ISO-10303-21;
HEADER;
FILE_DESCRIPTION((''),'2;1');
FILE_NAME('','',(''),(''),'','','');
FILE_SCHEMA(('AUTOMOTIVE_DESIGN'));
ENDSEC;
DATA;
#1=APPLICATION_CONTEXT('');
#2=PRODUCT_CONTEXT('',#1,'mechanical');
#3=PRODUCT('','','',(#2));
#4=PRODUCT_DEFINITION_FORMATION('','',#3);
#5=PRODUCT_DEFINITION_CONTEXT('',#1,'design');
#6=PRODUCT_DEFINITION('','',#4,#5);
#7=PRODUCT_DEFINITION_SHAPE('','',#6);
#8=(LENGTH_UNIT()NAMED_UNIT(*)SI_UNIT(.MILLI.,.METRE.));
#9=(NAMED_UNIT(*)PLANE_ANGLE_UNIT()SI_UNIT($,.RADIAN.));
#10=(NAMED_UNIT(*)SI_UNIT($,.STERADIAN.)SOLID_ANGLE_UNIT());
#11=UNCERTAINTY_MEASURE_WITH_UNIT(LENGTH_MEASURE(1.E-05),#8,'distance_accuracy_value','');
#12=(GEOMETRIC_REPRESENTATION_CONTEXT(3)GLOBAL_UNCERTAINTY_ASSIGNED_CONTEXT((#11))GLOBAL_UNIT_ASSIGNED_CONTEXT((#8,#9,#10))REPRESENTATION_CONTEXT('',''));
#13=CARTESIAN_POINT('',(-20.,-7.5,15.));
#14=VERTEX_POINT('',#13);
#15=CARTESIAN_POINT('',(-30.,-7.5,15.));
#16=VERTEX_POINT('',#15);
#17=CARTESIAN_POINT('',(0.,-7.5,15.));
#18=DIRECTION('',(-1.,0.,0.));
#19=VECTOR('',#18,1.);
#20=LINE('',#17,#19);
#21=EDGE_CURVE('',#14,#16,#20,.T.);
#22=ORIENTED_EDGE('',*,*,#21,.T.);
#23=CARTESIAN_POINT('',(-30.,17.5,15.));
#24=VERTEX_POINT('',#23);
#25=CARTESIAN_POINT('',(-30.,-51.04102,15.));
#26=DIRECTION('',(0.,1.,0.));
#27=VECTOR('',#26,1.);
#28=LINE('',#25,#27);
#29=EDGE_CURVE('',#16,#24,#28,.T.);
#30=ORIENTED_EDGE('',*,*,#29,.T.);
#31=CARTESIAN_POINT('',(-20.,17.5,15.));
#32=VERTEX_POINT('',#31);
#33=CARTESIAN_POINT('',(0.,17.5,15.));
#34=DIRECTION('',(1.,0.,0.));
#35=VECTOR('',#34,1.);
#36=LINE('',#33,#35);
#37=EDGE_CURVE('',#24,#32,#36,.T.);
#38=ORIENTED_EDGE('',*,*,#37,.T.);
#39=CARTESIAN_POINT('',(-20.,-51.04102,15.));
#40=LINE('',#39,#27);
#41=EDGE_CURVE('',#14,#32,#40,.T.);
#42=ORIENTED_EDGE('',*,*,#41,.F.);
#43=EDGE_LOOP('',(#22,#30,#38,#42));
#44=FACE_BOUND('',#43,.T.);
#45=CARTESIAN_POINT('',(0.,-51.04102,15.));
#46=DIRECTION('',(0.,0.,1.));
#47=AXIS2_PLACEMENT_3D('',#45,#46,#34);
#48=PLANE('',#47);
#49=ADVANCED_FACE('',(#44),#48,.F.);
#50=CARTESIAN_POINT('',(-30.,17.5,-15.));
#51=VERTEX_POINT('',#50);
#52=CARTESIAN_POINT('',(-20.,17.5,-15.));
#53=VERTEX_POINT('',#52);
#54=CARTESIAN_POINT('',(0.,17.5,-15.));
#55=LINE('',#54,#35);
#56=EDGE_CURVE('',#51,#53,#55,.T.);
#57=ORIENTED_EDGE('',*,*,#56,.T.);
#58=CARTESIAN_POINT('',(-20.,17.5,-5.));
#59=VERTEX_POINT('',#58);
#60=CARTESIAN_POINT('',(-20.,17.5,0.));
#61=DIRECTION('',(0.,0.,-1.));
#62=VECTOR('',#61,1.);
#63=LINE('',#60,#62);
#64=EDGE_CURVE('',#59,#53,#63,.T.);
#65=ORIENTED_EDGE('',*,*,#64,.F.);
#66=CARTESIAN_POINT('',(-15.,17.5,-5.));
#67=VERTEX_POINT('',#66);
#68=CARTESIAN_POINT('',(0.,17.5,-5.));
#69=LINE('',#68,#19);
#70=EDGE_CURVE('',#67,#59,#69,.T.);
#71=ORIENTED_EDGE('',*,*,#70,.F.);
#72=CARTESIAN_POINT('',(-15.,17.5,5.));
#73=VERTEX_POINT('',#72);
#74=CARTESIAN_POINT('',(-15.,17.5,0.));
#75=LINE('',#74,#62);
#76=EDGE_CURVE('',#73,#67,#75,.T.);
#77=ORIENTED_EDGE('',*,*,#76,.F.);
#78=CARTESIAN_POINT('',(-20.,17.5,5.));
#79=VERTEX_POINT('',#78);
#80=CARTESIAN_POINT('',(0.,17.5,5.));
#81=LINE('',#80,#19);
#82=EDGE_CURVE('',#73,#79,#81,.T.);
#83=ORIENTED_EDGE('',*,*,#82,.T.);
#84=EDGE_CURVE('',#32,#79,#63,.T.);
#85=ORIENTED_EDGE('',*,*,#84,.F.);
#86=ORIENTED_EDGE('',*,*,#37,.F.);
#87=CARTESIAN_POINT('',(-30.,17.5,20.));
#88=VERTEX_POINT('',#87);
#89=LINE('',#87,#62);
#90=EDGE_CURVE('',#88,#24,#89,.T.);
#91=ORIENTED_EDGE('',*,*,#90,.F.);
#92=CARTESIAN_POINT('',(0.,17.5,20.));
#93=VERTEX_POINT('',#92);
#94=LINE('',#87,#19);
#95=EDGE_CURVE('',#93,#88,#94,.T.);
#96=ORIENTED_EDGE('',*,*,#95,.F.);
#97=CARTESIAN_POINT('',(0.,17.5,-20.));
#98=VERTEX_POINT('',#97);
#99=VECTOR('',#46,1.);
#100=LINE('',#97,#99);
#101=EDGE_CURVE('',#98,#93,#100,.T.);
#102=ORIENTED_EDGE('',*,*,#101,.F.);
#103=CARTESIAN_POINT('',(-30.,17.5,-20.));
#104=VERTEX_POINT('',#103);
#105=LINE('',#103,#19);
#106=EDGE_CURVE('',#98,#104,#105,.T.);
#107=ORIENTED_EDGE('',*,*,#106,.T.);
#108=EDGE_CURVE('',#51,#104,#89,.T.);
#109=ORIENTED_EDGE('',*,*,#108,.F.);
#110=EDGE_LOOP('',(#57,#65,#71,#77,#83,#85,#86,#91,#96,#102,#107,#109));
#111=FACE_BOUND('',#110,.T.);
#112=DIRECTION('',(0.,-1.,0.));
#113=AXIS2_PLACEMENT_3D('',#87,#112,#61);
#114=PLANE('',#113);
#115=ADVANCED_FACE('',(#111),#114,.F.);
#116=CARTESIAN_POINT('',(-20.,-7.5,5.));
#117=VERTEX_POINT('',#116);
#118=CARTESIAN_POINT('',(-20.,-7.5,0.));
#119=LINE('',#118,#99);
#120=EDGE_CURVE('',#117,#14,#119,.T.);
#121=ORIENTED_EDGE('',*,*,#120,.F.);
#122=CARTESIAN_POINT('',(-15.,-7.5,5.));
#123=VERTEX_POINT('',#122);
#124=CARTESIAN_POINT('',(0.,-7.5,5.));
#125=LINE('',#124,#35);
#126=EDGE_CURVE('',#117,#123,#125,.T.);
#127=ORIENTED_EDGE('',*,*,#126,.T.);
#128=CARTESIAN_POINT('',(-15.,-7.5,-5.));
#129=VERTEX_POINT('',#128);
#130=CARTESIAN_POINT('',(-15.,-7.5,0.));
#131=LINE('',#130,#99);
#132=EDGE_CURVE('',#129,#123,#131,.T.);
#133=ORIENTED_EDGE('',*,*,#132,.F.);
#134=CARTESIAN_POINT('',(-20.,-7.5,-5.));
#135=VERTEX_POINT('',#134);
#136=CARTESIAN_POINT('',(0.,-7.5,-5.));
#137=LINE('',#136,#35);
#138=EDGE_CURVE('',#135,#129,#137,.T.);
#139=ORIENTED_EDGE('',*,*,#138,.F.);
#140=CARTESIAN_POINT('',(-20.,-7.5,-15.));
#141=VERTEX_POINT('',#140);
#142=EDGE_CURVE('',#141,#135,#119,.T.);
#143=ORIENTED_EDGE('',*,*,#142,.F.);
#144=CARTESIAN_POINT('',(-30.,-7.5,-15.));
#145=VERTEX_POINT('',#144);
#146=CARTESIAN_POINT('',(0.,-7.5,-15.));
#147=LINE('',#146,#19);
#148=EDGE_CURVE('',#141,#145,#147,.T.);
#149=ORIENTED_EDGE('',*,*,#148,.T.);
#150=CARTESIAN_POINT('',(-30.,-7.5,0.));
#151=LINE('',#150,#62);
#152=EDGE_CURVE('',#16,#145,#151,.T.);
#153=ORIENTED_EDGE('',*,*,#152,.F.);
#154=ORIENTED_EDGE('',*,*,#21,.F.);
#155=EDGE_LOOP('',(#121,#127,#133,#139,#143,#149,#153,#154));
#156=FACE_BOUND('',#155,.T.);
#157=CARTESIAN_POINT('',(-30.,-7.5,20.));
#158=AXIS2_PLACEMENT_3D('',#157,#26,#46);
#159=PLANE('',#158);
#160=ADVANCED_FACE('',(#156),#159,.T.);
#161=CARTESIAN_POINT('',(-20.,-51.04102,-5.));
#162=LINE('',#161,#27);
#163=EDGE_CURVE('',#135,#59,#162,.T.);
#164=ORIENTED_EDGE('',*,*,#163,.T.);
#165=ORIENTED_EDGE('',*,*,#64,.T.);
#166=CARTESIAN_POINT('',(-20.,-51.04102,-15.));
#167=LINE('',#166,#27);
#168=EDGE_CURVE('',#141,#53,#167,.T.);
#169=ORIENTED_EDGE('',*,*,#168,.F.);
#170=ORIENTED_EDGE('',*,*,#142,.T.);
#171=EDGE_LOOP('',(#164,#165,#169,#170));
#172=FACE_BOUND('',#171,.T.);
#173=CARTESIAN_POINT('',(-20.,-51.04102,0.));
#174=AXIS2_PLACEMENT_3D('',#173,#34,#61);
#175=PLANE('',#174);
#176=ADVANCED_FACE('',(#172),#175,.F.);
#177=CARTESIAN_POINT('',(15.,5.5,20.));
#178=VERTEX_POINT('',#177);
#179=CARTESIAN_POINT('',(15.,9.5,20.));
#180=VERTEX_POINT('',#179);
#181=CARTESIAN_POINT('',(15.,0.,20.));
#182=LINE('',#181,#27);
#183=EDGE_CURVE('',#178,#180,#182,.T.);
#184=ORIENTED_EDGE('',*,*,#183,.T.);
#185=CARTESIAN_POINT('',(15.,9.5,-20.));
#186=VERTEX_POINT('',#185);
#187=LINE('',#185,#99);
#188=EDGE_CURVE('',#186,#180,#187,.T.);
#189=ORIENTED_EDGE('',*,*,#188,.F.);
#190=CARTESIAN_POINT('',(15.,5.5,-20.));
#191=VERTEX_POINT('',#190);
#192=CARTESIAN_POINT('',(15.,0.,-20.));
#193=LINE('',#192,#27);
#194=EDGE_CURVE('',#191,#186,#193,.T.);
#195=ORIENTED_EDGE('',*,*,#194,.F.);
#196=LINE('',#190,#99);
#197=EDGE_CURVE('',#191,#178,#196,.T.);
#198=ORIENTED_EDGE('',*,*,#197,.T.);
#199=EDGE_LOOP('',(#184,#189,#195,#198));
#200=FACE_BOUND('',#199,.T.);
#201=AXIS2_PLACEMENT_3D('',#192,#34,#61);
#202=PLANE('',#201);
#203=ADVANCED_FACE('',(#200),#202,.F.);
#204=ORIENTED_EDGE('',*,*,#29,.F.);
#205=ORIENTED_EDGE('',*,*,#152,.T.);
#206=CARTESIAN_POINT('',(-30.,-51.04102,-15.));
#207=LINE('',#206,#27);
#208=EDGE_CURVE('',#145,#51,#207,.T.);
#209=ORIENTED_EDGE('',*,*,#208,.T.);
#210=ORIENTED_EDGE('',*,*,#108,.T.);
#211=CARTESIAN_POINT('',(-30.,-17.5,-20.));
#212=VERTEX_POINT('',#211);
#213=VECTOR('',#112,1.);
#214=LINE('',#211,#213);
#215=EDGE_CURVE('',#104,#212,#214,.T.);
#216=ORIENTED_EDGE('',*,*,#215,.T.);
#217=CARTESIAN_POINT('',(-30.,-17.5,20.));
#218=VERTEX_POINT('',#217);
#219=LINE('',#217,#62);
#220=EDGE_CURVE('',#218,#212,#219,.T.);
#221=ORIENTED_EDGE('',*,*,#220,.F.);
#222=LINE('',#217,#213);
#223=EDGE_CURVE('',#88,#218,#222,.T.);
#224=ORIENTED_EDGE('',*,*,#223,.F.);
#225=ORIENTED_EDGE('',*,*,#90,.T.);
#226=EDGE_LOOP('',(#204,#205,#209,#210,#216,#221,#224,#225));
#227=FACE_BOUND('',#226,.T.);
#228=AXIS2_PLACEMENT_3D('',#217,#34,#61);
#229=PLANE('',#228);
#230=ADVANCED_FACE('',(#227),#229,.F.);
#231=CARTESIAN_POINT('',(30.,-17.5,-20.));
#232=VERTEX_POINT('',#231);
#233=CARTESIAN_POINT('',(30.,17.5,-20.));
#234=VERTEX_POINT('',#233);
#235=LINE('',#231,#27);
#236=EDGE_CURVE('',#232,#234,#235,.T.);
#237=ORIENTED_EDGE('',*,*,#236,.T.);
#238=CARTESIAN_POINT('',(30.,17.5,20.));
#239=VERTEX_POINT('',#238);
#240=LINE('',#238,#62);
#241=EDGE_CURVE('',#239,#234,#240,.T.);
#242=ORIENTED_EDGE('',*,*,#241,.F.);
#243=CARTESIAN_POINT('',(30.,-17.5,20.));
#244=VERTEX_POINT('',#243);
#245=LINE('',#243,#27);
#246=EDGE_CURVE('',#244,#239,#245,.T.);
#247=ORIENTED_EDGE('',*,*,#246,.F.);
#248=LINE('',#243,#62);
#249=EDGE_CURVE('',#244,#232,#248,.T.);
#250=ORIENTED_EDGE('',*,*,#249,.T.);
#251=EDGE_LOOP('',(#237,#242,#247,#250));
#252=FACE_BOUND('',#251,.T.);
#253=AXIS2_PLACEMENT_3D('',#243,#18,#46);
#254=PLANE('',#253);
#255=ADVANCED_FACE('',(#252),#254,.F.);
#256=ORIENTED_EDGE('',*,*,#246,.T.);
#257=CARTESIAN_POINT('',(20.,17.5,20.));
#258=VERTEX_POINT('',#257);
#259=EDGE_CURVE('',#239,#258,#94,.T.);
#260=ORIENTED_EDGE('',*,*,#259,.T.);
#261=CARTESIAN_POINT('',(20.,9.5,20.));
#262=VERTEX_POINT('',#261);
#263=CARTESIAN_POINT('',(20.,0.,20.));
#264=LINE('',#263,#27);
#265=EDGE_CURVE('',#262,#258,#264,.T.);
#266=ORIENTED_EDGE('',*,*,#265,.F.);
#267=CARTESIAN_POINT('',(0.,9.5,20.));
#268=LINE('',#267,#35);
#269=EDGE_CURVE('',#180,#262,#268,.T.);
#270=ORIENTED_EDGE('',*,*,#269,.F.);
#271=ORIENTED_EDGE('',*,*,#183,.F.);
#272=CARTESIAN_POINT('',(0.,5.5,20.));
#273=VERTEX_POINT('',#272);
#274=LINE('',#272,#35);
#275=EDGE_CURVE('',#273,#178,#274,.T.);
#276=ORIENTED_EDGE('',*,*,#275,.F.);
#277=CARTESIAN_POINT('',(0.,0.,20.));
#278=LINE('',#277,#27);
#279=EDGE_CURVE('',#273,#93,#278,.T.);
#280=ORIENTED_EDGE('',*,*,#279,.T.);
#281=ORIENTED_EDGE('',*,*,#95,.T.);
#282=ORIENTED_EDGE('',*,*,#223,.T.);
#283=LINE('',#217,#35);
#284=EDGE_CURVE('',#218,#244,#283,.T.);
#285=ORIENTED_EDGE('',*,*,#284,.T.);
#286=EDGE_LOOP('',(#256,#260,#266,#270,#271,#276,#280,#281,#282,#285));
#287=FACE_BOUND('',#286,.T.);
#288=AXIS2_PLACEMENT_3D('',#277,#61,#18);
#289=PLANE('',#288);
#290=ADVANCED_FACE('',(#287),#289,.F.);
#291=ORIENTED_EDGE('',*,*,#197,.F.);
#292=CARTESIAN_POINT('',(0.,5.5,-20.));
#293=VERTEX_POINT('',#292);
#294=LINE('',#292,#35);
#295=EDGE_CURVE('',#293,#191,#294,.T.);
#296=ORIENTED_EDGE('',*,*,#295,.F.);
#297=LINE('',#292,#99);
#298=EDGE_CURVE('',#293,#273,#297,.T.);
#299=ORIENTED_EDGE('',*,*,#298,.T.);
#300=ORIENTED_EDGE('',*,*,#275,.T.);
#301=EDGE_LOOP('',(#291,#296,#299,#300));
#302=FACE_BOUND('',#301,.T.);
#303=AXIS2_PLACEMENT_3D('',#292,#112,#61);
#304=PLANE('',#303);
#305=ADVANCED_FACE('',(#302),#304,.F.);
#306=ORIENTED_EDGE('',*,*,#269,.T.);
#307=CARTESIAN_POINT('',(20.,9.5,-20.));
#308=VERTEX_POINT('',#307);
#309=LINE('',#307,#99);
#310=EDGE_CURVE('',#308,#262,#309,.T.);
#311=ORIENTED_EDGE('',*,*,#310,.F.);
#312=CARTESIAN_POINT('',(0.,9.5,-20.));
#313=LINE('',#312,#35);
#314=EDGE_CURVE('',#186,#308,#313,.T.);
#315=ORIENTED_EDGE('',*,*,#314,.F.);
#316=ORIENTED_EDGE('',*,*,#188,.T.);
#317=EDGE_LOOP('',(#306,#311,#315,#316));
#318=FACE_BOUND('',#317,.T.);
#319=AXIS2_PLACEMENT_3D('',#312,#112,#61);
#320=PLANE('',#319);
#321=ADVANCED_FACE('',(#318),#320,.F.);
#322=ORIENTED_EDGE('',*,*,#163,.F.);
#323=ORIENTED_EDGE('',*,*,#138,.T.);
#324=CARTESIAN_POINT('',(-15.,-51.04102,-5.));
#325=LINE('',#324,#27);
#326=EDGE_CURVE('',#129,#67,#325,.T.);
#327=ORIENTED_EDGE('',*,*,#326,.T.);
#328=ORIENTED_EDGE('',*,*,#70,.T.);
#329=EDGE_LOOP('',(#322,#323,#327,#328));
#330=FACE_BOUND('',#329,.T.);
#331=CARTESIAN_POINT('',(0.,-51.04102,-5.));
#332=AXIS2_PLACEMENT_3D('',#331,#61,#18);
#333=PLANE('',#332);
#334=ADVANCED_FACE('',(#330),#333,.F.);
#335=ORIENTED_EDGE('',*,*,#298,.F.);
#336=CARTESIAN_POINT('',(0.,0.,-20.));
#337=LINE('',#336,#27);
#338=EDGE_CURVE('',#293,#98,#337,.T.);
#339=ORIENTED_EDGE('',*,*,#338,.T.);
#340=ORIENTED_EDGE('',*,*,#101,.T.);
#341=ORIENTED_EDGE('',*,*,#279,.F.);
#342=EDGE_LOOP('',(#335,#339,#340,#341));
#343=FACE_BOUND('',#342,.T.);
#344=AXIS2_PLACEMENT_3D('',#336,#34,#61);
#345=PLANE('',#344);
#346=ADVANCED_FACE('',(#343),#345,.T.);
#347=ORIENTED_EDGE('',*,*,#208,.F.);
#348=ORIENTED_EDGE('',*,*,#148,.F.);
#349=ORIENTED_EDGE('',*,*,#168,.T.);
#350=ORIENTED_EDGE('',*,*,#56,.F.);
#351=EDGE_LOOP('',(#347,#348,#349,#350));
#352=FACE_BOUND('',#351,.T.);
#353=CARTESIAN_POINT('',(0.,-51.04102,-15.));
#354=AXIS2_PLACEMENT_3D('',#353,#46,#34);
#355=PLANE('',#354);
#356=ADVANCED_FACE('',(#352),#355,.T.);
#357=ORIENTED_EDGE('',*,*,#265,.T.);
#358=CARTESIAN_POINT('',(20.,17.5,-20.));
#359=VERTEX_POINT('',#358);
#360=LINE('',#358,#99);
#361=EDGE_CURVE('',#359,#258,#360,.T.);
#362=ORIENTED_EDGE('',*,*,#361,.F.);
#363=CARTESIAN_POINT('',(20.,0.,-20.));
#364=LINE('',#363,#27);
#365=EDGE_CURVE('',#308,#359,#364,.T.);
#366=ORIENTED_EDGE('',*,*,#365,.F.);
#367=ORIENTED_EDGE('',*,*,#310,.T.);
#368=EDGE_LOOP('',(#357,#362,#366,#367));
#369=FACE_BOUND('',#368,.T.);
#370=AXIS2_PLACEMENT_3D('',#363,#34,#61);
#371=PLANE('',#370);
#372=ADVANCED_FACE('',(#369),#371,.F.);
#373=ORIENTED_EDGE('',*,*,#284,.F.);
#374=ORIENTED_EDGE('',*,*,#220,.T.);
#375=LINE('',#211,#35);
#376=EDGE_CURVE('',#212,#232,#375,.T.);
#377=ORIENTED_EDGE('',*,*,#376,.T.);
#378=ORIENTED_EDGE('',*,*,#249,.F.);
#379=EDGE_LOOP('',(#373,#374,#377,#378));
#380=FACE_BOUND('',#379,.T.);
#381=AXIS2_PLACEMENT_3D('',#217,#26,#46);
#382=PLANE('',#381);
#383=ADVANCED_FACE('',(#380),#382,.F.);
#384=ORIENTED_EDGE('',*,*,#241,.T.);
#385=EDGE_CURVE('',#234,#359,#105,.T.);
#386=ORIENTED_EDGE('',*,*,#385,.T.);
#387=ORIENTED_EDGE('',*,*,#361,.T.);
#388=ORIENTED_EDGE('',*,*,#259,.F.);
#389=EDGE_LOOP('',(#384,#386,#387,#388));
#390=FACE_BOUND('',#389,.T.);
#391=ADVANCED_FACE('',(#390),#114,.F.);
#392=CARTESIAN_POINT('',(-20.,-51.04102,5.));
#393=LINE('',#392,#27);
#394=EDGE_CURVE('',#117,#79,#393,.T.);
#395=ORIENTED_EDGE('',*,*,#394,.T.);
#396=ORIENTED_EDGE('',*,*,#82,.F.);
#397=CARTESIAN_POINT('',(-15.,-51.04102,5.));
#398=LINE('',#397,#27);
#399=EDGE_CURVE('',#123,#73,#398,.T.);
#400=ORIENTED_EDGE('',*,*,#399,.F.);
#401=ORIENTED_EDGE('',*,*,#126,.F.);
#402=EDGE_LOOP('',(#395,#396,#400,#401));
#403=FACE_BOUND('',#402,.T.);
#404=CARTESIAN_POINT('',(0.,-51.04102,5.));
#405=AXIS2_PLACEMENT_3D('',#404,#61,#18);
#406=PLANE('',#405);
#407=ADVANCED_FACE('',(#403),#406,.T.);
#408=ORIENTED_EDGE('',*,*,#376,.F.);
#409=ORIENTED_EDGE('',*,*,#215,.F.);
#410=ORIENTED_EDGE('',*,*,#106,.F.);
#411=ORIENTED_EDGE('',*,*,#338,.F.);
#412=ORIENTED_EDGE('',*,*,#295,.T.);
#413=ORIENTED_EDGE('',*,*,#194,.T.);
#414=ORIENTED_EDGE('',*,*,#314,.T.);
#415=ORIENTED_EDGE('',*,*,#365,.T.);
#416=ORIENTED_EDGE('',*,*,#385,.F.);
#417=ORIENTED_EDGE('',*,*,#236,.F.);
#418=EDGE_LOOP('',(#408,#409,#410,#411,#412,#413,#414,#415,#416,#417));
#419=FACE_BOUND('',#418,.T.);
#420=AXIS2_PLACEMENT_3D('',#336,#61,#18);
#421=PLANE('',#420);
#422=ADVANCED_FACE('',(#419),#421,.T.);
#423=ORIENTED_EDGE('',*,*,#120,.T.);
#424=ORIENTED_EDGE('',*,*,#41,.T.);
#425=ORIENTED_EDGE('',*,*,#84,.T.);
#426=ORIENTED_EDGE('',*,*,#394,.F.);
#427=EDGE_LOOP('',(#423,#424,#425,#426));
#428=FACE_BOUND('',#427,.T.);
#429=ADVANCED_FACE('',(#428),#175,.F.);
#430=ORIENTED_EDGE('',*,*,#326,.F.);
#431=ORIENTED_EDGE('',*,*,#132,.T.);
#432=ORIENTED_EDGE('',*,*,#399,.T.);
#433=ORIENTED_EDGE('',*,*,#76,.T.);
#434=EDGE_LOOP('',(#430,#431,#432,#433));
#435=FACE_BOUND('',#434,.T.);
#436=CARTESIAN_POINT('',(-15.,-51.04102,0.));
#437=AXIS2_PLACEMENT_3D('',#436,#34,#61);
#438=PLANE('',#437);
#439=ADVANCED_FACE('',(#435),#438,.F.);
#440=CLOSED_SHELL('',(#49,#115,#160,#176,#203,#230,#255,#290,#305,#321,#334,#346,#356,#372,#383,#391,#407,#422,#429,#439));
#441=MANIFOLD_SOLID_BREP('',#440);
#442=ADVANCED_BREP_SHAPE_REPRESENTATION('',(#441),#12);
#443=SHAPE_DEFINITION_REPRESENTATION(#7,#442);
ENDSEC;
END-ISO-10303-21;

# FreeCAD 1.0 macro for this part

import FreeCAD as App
import Part
import Sketcher
Q = App.Units.Quantity


def add_polygon(sketch, points):
    """Adds a closed chain of lines whose ends are joined by coincident constraints."""
    first, n = sketch.GeometryCount, len(points)
    for a, b in zip(points, points[1:] + points[:1]):
        sketch.addGeometry(Part.LineSegment(App.Vector(*a, 0), App.Vector(*b, 0)), False)
    for i in range(n):
        sketch.addConstraint(Sketcher.Constraint("Coincident", first + i, 2, first + (i + 1) % n, 1))

doc = App.newDocument("Part")
body = doc.addObject("PartDesign::Body", "Body")

sketch1 = body.newObject("Sketcher::SketchObject", "Sketch")
sketch1.AttachmentSupport = (doc.getObject("XY_Plane"), [""])
sketch1.MapMode = "FlatFace"
add_polygon(sketch1, [(-30, 17.5), (-30, -17.5), (30, -17.5), (30, 17.5)])
sketch1.addConstraint([
    Sketcher.Constraint("Vertical", 0),
    Sketcher.Constraint("Horizontal", 1),
    Sketcher.Constraint("Vertical", 2),
    Sketcher.Constraint("Horizontal", 3),
    Sketcher.Constraint("Symmetric", 0, 2, 2, 2, -1, 1),
    Sketcher.Constraint("DistanceX", 1, 1, 1, 2, Q("60 mm")),
    Sketcher.Constraint("DistanceY", 0, 2, 0, 1, Q("35 mm")),
])
pad1 = body.newObject("PartDesign::Pad", "Pad")
pad1.Profile = sketch1
pad1.Length = 40
pad1.Midplane = True

sketch2 = body.newObject("Sketcher::SketchObject", "Sketch001")
sketch2.AttachmentSupport = (doc.getObject("XZ_Plane"), [""])
sketch2.MapMode = "FlatFace"
sketch2.AttachmentOffset = App.Placement(App.Vector(0, 0, -17.5), App.Rotation())
add_polygon(sketch2, [(-30, -15), (-30, 15), (-20, 15), (-20, 5), (-15, 5), (-15, -5), (-20, -5), (-20, -15)])
sketch2.addConstraint([
    Sketcher.Constraint("Vertical", 0),
    Sketcher.Constraint("Horizontal", 1),
    Sketcher.Constraint("Vertical", 2),
    Sketcher.Constraint("Horizontal", 3),
    Sketcher.Constraint("Vertical", 4),
    Sketcher.Constraint("Horizontal", 5),
    Sketcher.Constraint("Vertical", 6),
    Sketcher.Constraint("Horizontal", 7),
    Sketcher.Constraint("Symmetric", 2, 2, 5, 2, -1),
    Sketcher.Constraint("Equal", 7, 2),
    Sketcher.Constraint("Equal", 2, 4),
    Sketcher.Constraint("Equal", 4, 6),
    Sketcher.Constraint("DistanceX", 1, 1, 1, 2, Q("10 mm")),
    Sketcher.Constraint("DistanceX", 3, 1, 3, 2, Q("5 mm")),
    Sketcher.Constraint("DistanceX", 0, 2, -1, 1, Q("30 mm")),
])
pocket1 = body.newObject("PartDesign::Pocket", "Pocket")
pocket1.Profile = sketch2
pocket1.Length = 25
pocket1.Reversed = True

sketch3 = body.newObject("Sketcher::SketchObject", "Sketch002")
sketch3.AttachmentSupport = (doc.getObject("XY_Plane"), [""])
sketch3.MapMode = "FlatFace"
sketch3.AttachmentOffset = App.Placement(App.Vector(0, 0, 20), App.Rotation())
add_polygon(sketch3, [(0, 17.5), (0, 5.5), (15, 5.5), (15, 9.5), (20, 9.5), (20, 17.5)])
sketch3.addConstraint([
    Sketcher.Constraint("Vertical", 0),
    Sketcher.Constraint("Horizontal", 1),
    Sketcher.Constraint("Vertical", 2),
    Sketcher.Constraint("Horizontal", 3),
    Sketcher.Constraint("Vertical", 4),
    Sketcher.Constraint("Horizontal", 5),
    Sketcher.Constraint("PointOnObject", 0, 2, -2),
    Sketcher.Constraint("DistanceX", 1, 1, 1, 2, Q("15 mm")),
    Sketcher.Constraint("DistanceX", 3, 1, 3, 2, Q("5 mm")),
    Sketcher.Constraint("DistanceY", 0, 2, 0, 1, Q("12 mm")),
    Sketcher.Constraint("DistanceY", 2, 1, 2, 2, Q("4 mm")),
    Sketcher.Constraint("DistanceY", -1, 1, 0, 2, Q("5.5 mm")),
])
pocket2 = body.newObject("PartDesign::Pocket", "Pocket001")
pocket2.Profile = sketch3
pocket2.Type = "ThroughAll"

doc.recompute()
